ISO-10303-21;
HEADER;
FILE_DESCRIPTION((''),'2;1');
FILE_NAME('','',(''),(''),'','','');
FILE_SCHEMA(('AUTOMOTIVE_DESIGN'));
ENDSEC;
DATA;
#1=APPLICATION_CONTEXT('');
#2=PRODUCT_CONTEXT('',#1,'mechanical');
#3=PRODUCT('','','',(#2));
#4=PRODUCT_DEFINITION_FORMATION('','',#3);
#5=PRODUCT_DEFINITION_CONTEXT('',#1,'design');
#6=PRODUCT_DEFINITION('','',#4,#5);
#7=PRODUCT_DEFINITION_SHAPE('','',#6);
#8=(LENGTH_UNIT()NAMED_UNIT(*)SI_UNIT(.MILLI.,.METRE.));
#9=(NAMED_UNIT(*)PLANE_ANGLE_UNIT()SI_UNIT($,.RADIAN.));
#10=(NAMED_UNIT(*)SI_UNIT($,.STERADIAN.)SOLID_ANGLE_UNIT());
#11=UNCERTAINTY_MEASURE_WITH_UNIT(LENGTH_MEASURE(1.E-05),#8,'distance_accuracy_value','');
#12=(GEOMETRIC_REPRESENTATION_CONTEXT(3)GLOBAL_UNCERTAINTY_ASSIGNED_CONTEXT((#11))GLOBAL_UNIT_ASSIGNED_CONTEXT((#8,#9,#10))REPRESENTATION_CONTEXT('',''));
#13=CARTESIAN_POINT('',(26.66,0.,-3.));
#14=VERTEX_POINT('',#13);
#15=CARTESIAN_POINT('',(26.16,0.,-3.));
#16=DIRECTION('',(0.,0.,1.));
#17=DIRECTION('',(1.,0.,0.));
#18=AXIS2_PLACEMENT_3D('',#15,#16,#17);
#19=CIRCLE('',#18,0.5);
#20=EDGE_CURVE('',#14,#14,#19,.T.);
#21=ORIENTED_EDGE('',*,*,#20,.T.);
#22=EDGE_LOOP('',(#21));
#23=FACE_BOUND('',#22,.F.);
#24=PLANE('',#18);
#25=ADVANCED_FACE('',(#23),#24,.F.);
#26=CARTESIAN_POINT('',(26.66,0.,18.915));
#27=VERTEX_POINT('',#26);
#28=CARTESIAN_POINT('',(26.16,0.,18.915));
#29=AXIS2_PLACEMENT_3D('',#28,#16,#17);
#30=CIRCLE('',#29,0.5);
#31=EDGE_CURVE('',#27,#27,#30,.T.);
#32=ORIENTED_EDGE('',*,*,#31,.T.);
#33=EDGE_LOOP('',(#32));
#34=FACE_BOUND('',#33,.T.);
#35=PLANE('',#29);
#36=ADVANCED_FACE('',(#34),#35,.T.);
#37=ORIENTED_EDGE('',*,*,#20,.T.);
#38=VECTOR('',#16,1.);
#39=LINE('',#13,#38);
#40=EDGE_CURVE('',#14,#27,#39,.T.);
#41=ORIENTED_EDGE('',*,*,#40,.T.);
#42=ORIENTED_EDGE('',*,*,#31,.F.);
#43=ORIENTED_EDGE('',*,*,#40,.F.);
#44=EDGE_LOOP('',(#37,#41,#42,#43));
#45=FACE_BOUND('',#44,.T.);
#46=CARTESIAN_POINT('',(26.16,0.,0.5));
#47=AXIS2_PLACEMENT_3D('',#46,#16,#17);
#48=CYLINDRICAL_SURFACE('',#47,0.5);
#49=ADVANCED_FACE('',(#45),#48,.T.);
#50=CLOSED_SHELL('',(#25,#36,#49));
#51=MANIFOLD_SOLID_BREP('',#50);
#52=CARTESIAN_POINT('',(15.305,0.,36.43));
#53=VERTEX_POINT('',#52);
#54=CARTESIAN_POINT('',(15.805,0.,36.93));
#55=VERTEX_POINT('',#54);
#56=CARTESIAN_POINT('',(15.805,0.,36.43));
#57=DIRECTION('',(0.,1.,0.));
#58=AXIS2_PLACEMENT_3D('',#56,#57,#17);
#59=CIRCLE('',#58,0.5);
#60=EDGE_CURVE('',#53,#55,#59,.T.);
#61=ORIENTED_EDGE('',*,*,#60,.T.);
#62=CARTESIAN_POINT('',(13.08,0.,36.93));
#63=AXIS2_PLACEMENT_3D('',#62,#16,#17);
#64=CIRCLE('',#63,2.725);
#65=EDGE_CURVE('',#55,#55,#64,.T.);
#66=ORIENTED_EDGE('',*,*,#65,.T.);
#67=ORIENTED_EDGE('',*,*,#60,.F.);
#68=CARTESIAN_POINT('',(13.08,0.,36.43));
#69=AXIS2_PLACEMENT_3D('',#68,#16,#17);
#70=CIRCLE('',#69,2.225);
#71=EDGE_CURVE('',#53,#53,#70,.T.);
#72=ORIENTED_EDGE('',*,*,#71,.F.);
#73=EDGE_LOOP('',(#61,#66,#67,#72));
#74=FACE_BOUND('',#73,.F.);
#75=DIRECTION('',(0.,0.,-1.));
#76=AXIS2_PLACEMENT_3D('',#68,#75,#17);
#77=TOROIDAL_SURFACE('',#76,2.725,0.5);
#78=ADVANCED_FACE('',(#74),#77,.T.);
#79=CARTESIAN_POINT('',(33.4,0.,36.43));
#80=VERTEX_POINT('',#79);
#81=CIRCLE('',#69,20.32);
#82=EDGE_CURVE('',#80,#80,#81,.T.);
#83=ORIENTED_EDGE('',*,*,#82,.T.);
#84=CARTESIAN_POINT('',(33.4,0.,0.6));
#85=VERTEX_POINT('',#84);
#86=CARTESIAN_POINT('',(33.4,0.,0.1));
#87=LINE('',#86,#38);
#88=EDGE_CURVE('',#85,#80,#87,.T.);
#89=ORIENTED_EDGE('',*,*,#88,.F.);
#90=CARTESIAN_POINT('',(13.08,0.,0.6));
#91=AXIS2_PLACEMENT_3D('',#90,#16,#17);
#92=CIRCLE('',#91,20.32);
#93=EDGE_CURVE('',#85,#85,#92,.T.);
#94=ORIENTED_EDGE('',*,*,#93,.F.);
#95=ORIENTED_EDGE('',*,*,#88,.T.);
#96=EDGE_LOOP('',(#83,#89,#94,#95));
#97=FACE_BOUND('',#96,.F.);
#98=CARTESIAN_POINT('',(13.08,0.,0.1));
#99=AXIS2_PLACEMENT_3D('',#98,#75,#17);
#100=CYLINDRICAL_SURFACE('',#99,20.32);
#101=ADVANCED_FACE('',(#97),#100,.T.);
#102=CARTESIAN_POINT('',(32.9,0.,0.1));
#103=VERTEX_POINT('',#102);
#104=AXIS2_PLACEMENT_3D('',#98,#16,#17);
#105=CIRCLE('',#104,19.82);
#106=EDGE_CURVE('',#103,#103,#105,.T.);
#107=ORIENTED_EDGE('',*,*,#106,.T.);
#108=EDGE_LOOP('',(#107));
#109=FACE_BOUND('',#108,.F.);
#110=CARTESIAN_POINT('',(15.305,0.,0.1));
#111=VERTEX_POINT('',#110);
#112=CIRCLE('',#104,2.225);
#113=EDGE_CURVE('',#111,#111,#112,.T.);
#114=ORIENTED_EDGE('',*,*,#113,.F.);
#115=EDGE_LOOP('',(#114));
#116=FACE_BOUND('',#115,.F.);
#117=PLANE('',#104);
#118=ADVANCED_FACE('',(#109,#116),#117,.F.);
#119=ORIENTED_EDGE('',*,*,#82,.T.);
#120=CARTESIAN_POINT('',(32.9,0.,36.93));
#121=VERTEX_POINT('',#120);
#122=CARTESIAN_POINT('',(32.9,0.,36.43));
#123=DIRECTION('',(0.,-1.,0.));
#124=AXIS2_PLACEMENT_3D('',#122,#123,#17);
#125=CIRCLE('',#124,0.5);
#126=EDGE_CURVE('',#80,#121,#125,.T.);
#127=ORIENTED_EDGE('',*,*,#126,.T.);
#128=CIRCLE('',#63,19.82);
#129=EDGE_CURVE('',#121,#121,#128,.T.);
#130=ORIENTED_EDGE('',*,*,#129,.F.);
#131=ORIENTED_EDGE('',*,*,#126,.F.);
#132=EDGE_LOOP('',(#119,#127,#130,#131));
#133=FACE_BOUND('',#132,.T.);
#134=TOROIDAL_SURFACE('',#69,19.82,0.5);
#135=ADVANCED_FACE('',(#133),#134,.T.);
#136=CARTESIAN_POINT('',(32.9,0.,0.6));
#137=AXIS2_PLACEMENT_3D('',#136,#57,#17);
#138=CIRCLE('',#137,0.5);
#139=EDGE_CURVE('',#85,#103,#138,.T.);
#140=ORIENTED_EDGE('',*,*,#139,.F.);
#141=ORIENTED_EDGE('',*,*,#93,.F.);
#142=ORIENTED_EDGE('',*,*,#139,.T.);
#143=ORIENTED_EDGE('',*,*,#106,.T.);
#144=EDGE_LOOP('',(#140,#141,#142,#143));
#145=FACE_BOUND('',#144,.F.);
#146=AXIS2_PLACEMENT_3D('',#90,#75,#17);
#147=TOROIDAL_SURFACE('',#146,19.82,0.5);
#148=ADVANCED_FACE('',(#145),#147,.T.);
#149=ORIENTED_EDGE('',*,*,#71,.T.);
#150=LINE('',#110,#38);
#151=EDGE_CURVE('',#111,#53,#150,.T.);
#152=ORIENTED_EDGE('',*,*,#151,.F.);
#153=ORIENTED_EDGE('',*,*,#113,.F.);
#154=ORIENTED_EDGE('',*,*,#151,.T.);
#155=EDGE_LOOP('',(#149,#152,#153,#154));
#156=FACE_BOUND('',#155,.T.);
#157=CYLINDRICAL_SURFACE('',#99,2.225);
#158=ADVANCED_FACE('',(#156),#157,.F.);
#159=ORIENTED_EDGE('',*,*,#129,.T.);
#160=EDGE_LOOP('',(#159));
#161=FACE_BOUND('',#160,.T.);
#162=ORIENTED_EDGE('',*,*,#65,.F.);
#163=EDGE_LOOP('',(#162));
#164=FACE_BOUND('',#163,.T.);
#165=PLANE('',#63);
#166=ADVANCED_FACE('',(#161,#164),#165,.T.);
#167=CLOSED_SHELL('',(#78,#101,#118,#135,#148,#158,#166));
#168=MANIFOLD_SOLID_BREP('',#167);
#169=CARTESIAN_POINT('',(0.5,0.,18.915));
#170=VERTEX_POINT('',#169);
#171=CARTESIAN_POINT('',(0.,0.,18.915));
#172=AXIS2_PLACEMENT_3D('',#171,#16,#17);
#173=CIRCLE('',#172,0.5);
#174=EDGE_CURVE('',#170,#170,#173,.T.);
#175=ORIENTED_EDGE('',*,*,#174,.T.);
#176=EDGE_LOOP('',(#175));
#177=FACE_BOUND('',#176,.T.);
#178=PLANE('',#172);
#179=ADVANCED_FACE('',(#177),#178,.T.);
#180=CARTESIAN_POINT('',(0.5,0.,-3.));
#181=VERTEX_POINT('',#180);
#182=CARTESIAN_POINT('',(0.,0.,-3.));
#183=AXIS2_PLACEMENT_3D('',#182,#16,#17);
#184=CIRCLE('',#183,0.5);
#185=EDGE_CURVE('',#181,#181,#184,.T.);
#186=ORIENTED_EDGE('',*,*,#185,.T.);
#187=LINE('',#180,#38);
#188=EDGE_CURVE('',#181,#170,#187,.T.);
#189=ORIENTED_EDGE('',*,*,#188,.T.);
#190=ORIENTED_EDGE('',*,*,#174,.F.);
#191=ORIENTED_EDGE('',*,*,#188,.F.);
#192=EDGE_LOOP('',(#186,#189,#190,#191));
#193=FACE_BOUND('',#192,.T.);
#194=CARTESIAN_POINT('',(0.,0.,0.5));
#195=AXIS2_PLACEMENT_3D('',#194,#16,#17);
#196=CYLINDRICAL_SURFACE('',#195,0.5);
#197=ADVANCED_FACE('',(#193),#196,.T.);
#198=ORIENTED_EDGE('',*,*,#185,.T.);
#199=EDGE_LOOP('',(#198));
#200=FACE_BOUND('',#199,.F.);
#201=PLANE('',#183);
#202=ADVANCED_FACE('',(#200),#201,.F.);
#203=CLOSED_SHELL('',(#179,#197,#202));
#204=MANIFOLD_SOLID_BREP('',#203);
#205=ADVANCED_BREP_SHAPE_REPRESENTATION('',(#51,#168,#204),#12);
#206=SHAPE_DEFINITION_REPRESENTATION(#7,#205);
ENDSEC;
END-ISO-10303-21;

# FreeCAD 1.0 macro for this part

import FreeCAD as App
import Part
import Sketcher
from FreeCAD import Vector
Q = App.Units.Quantity


def edges_at(feature, points):
    """Names of the edges that pass closest to the given points."""
    edges = feature.Shape.Edges
    near = lambda p: min(range(len(edges)), key=lambda i: edges[i].distToShape(Part.Vertex(*p))[0])
    return sorted({f"Edge{near(p) + 1}" for p in points})

doc = App.newDocument("Part")
body = doc.addObject("PartDesign::Body", "Body")
body.AllowCompound = True

# Sketch on XY plane
sketch1 = doc.addObject("Sketcher::SketchObject", "Sketch")
body.addObject(sketch1)
sketch1.AttachmentSupport = (doc.XY_Plane, [""])
sketch1.MapMode = "FlatFace"
sketch1.AttachmentOffset = App.Placement(Vector(0, 0, 0.5), App.Rotation())
sketch1.addGeometry(Part.Circle(Vector(0, 0, 0), Vector(0, 0, 1), 0.5), False)
sketch1.addGeometry(Part.Circle(Vector(26.16, 0, 0), Vector(0, 0, 1), 0.5), False)
sketch1.addConstraint(Sketcher.Constraint("Coincident", 0, 3, -1, 1))
sketch1.addConstraint(Sketcher.Constraint("Equal", 0, 1))
sketch1.addConstraint(Sketcher.Constraint("PointOnObject", 1, 3, -1))
sketch1.addConstraint(Sketcher.Constraint("Diameter", 0, Q("1 mm")))
sketch1.addConstraint(Sketcher.Constraint("DistanceX", -1, 1, 1, 3, Q("26.16 mm")))
pad1 = doc.addObject("PartDesign::Pad", "Pad")
body.addObject(pad1)
pad1.Profile = sketch1
pad1.Type = "TwoLengths"
pad1.Length = Q("0.725 in")
pad1.Length2 = 3.5
body2 = doc.addObject("PartDesign::Body", "Body001")

# Sketch on XY plane
sketch2 = doc.addObject("Sketcher::SketchObject", "Sketch001")
body2.addObject(sketch2)
sketch2.AttachmentSupport = (doc.getObject("XY_Plane001"), [""])
sketch2.MapMode = "FlatFace"
sketch2.AttachmentOffset = App.Placement(Vector(0, 0, 0.1), App.Rotation())
sketch2.addGeometry(Part.Circle(Vector(13.08, 0, 0), Vector(0, 0, 1), 20.32), False)
sketch2.addGeometry(Part.Circle(Vector(13.08, 0, 0), Vector(0, 0, 1), 2.225), False)
sketch2.addConstraint(Sketcher.Constraint("Coincident", 1, 3, 0, 3))
sketch2.addConstraint(Sketcher.Constraint("PointOnObject", 0, 3, -1))
sketch2.addConstraint(Sketcher.Constraint("Diameter", 0, Q("1.6 in")))
sketch2.addConstraint(Sketcher.Constraint("Diameter", 1, Q("4.45 mm")))
sketch2.addConstraint(Sketcher.Constraint("DistanceX", -1, 1, 0, 3, Q("13.08 mm")))
pad2 = doc.addObject("PartDesign::Pad", "Pad001")
body2.addObject(pad2)
pad2.Profile = sketch2
pad2.Length = Q("1.45 in")
doc.recompute()

fillet = doc.addObject("PartDesign::Fillet", "Fillet")
body2.addObject(fillet)
fillet.Base = (pad2, edges_at(pad2, [(10.855, 0, 36.93), (-7.24, 0, 36.93), (-7.24, 0, 0.1)]))
fillet.Radius = 0.5

doc.recompute()
